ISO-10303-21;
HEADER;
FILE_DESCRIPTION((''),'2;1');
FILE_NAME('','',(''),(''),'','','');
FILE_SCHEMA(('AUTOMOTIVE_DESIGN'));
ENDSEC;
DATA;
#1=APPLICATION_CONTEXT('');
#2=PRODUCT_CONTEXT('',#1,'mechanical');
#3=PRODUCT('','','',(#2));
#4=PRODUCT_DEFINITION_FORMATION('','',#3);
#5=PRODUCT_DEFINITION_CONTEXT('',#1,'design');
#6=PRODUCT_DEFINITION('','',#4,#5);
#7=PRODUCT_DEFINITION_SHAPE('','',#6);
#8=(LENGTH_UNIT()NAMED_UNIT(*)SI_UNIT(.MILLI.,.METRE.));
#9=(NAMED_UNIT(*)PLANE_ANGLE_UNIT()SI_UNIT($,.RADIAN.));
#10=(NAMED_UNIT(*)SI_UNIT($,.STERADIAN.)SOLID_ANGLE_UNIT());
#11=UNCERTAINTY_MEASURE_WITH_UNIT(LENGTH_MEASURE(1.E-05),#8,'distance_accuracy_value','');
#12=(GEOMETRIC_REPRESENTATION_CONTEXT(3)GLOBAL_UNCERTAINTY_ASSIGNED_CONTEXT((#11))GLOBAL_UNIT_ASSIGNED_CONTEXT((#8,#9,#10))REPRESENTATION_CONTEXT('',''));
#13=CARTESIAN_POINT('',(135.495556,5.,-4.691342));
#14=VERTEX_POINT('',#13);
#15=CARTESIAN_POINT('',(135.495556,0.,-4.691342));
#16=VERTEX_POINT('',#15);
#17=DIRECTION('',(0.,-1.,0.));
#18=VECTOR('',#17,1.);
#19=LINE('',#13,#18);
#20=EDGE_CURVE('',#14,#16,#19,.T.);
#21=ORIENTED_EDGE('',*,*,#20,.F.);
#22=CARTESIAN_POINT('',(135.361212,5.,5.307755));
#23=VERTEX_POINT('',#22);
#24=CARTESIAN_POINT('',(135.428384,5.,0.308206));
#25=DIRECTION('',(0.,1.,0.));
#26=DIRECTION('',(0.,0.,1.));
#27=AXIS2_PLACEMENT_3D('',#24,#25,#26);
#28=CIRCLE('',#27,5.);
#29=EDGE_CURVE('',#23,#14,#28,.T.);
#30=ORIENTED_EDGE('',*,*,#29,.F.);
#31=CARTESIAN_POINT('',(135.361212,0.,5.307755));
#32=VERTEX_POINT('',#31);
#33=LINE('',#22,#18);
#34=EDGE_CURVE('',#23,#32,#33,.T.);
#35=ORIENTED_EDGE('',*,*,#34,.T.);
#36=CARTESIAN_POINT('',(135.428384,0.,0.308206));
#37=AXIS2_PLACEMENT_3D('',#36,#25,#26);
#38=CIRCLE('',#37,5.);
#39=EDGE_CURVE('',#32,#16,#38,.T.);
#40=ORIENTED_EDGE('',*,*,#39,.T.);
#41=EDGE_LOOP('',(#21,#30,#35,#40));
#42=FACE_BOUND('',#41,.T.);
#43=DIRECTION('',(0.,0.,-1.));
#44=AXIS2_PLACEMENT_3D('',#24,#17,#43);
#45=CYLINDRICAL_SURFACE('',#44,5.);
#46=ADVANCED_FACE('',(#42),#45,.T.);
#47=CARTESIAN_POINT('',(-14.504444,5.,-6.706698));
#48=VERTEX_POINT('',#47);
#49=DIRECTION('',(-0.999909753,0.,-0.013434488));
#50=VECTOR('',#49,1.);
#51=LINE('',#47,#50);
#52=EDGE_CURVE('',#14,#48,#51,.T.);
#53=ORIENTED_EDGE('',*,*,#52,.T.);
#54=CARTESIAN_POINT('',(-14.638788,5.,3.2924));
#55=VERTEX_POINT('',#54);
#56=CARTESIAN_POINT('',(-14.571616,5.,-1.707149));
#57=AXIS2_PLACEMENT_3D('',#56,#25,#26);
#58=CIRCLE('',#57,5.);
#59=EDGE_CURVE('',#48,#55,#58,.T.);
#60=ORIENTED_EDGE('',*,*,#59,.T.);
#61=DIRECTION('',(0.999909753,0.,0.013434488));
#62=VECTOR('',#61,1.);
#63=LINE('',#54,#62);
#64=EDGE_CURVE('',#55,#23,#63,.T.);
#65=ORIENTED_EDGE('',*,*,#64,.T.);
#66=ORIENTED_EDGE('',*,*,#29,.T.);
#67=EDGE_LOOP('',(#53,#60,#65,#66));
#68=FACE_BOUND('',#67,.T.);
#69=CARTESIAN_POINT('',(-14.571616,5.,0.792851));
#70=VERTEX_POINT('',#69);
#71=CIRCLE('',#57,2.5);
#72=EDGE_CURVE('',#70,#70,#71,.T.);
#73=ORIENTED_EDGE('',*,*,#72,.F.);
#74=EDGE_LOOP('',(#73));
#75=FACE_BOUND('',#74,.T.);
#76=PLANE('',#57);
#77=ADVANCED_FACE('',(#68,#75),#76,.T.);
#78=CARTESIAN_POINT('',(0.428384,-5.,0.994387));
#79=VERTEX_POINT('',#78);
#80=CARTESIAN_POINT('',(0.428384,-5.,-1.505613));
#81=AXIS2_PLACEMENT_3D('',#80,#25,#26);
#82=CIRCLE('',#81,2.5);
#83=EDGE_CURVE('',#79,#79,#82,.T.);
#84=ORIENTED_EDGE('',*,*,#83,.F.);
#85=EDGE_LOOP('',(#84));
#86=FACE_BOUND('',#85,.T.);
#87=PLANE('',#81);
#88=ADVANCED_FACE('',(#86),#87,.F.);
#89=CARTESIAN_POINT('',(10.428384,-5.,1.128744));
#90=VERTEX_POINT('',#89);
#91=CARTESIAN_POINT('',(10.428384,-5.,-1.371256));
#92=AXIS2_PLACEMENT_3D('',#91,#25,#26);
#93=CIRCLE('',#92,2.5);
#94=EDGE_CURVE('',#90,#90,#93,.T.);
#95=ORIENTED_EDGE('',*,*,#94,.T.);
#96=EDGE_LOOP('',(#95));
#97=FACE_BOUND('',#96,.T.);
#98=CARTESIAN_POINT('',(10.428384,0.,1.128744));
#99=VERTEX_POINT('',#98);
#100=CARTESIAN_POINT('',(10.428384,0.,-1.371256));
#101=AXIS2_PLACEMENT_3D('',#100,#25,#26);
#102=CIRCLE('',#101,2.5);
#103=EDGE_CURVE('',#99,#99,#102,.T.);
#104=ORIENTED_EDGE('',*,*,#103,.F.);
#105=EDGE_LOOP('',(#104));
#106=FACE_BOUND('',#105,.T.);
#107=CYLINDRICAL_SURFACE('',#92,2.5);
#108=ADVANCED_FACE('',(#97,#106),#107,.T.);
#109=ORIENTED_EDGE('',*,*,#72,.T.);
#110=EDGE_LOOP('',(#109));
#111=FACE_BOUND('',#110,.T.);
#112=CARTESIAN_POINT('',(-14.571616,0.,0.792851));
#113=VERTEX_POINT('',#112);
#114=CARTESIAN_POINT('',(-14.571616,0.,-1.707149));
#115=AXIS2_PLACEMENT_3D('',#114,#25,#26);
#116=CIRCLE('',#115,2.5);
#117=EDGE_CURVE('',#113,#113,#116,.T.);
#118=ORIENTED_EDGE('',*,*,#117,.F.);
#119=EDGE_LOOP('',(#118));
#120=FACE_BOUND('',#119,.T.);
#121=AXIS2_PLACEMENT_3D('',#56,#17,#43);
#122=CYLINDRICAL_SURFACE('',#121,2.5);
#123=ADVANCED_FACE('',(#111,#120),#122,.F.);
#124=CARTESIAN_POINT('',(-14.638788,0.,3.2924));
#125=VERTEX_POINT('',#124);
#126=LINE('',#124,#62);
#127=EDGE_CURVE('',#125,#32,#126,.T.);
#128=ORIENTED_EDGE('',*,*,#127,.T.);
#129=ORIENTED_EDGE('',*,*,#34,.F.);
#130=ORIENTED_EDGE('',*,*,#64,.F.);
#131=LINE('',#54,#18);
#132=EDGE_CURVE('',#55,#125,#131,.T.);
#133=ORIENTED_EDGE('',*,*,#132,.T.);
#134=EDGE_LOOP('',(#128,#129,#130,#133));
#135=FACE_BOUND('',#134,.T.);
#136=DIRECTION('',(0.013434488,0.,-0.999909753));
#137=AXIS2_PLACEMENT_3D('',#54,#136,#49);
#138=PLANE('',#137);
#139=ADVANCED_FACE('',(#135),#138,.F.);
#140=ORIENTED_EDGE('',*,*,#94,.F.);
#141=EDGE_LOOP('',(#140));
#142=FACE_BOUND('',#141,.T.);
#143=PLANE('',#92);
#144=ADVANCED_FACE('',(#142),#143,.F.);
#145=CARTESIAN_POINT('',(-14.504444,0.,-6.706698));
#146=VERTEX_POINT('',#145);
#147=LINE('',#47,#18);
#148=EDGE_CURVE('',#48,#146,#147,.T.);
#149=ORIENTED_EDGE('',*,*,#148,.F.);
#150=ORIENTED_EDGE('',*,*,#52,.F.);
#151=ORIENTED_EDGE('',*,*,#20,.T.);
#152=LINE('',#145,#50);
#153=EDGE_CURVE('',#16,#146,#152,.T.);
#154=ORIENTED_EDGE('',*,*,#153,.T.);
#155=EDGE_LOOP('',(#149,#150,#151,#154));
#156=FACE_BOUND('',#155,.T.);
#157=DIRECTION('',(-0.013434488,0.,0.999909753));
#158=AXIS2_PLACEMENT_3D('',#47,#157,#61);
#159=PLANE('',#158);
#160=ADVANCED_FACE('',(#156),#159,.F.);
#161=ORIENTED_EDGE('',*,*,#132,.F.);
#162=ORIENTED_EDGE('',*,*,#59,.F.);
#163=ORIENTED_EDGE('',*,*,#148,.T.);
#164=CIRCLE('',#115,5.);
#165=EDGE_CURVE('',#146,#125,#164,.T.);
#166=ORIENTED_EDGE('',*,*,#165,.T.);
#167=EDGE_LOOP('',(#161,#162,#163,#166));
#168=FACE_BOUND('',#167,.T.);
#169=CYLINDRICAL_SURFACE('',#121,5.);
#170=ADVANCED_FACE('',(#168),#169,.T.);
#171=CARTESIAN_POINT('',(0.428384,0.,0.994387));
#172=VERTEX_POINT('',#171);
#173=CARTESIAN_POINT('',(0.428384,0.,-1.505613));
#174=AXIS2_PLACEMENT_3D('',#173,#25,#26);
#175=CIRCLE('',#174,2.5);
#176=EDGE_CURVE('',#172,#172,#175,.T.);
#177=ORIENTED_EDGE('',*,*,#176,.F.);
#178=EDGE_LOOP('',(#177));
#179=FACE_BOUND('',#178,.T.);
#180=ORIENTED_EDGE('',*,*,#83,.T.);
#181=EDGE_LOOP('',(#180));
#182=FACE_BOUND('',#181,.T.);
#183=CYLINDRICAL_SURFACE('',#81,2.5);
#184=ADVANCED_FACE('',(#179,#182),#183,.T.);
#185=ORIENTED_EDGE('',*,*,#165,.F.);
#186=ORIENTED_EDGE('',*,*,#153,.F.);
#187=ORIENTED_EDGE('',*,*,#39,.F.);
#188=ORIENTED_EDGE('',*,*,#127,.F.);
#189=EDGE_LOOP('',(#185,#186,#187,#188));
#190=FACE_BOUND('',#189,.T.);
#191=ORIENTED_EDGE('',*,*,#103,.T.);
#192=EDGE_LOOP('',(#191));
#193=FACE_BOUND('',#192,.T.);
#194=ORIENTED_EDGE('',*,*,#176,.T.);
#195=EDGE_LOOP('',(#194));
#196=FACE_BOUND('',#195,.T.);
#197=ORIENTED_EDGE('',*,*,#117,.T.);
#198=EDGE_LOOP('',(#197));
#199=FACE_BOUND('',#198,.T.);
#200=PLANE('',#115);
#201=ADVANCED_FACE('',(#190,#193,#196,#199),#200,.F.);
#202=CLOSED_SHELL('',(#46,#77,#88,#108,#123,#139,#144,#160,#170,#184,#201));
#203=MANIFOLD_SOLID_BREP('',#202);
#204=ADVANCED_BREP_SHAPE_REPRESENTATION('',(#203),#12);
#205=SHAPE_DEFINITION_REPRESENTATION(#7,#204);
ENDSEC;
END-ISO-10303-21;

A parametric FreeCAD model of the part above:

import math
import FreeCAD as App
import Part
import Sketcher

doc = App.newDocument("Part")
params = doc.addObject("Spreadsheet::Sheet", "Params")
for row, (alias, value) in enumerate([
    ("sketch1_diameter", "5 mm"),
    ("sketch1_radius", "5 mm"),
    ("pad1_length", "5 mm"),
    ("sketch2_diameter", "5 mm"),
    ("pad2_length", "10 mm"),
], start=1):
    params.set(f"A{row}", alias)
    params.set(f"B{row}", "=" + value)
    params.setAlias(f"B{row}", alias)

body = doc.addObject("PartDesign::Body", "Body")

sketch1 = body.newObject("Sketcher::SketchObject", "Sketch")
sketch1.AttachmentSupport = (doc.getObject("XZ_Plane"), [""])
sketch1.MapMode = "FlatFace"
sketch1.addGeometry(Part.LineSegment(App.Vector(135.5, -4.7, 0), App.Vector(-14.5, -6.7, 0)), False)
sketch1.addGeometry(Part.ArcOfCircle(Part.Circle(App.Vector(-14.6, -1.7, 0), App.Vector(0, 0, 1), 5), math.radians(91), math.radians(271)), False)
sketch1.addGeometry(Part.LineSegment(App.Vector(-14.6, 3.3, 0), App.Vector(135.4, 5.3, 0)), False)
sketch1.addGeometry(Part.ArcOfCircle(Part.Circle(App.Vector(135.4, 0.3, 0), App.Vector(0, 0, 1), 5), math.radians(-89), math.radians(91)), False)
sketch1.addGeometry(Part.Circle(App.Vector(-14.6, -1.7, 0), App.Vector(0, 0, 1), 2.5), False)
sketch1.addConstraint(Sketcher.Constraint("Tangent", 0, 2, 1, 2))
sketch1.addConstraint(Sketcher.Constraint("Tangent", 1, 1, 2, 1))
sketch1.addConstraint(Sketcher.Constraint("Tangent", 2, 2, 3, 2))
sketch1.addConstraint(Sketcher.Constraint("Tangent", 3, 1, 0, 1))
sketch1.addConstraint(Sketcher.Constraint("Coincident", 4, 3, 1, 3))
sketch1.addConstraint(Sketcher.Constraint("Equal", 1, 3))
sketch1.addConstraint(Sketcher.Constraint("Diameter", 4, 5.0))
sketch1.addConstraint(Sketcher.Constraint("Radius", 1, 5.0))
sketch1.addConstraint(Sketcher.Constraint("DistanceX", 1, 3, 3, 3, 150.0))
sketch1.addConstraint(Sketcher.Constraint("DistanceY", -1, 1, 1, 1, 3.2924))
sketch1.addConstraint(Sketcher.Constraint("Distance", 0, 150.013538))
sketch1.addConstraint(Sketcher.Constraint("DistanceX", 1, 1, -1, 1, 14.638788))
sketch1.setExpression("Constraints[6]", "Params.sketch1_diameter")
sketch1.setExpression("Constraints[7]", "Params.sketch1_radius")
pad1 = body.newObject("PartDesign::Pad", "Pad")
pad1.Profile = sketch1
pad1.setExpression("Length", "Params.pad1_length")
pad1.Reversed = True

sketch2 = body.newObject("Sketcher::SketchObject", "Sketch001")
sketch2.AttachmentSupport = (doc.getObject("XZ_Plane"), [""])
sketch2.MapMode = "FlatFace"
sketch2.AttachmentOffset = App.Placement(App.Vector(0, 0, -5), App.Rotation())
sketch2.addGeometry(Part.Circle(App.Vector(0.4, -1.5, 0), App.Vector(0, 0, 1), 2.5), False)
sketch2.addGeometry(Part.Circle(App.Vector(10.4, -1.4, 0), App.Vector(0, 0, 1), 2.5), False)
sketch2.addConstraint(Sketcher.Constraint("Equal", 0, 1))
sketch2.addConstraint(Sketcher.Constraint("Diameter", 0, 5.0))
sketch2.addConstraint(Sketcher.Constraint("DistanceX", 0, 3, 1, 3, 10.0))
sketch2.addConstraint(Sketcher.Constraint("DistanceX", -1, 1, 0, 3, 0.428384))
sketch2.addConstraint(Sketcher.Constraint("DistanceY", 0, 3, -1, 1, 1.505613))
sketch2.addConstraint(Sketcher.Constraint("DistanceY", 1, 3, -1, 1, 1.371256))
sketch2.setExpression("Constraints[1]", "Params.sketch2_diameter")
pad2 = body.newObject("PartDesign::Pad", "Pad001")
pad2.Profile = sketch2
pad2.setExpression("Length", "Params.pad2_length")

doc.recompute()
